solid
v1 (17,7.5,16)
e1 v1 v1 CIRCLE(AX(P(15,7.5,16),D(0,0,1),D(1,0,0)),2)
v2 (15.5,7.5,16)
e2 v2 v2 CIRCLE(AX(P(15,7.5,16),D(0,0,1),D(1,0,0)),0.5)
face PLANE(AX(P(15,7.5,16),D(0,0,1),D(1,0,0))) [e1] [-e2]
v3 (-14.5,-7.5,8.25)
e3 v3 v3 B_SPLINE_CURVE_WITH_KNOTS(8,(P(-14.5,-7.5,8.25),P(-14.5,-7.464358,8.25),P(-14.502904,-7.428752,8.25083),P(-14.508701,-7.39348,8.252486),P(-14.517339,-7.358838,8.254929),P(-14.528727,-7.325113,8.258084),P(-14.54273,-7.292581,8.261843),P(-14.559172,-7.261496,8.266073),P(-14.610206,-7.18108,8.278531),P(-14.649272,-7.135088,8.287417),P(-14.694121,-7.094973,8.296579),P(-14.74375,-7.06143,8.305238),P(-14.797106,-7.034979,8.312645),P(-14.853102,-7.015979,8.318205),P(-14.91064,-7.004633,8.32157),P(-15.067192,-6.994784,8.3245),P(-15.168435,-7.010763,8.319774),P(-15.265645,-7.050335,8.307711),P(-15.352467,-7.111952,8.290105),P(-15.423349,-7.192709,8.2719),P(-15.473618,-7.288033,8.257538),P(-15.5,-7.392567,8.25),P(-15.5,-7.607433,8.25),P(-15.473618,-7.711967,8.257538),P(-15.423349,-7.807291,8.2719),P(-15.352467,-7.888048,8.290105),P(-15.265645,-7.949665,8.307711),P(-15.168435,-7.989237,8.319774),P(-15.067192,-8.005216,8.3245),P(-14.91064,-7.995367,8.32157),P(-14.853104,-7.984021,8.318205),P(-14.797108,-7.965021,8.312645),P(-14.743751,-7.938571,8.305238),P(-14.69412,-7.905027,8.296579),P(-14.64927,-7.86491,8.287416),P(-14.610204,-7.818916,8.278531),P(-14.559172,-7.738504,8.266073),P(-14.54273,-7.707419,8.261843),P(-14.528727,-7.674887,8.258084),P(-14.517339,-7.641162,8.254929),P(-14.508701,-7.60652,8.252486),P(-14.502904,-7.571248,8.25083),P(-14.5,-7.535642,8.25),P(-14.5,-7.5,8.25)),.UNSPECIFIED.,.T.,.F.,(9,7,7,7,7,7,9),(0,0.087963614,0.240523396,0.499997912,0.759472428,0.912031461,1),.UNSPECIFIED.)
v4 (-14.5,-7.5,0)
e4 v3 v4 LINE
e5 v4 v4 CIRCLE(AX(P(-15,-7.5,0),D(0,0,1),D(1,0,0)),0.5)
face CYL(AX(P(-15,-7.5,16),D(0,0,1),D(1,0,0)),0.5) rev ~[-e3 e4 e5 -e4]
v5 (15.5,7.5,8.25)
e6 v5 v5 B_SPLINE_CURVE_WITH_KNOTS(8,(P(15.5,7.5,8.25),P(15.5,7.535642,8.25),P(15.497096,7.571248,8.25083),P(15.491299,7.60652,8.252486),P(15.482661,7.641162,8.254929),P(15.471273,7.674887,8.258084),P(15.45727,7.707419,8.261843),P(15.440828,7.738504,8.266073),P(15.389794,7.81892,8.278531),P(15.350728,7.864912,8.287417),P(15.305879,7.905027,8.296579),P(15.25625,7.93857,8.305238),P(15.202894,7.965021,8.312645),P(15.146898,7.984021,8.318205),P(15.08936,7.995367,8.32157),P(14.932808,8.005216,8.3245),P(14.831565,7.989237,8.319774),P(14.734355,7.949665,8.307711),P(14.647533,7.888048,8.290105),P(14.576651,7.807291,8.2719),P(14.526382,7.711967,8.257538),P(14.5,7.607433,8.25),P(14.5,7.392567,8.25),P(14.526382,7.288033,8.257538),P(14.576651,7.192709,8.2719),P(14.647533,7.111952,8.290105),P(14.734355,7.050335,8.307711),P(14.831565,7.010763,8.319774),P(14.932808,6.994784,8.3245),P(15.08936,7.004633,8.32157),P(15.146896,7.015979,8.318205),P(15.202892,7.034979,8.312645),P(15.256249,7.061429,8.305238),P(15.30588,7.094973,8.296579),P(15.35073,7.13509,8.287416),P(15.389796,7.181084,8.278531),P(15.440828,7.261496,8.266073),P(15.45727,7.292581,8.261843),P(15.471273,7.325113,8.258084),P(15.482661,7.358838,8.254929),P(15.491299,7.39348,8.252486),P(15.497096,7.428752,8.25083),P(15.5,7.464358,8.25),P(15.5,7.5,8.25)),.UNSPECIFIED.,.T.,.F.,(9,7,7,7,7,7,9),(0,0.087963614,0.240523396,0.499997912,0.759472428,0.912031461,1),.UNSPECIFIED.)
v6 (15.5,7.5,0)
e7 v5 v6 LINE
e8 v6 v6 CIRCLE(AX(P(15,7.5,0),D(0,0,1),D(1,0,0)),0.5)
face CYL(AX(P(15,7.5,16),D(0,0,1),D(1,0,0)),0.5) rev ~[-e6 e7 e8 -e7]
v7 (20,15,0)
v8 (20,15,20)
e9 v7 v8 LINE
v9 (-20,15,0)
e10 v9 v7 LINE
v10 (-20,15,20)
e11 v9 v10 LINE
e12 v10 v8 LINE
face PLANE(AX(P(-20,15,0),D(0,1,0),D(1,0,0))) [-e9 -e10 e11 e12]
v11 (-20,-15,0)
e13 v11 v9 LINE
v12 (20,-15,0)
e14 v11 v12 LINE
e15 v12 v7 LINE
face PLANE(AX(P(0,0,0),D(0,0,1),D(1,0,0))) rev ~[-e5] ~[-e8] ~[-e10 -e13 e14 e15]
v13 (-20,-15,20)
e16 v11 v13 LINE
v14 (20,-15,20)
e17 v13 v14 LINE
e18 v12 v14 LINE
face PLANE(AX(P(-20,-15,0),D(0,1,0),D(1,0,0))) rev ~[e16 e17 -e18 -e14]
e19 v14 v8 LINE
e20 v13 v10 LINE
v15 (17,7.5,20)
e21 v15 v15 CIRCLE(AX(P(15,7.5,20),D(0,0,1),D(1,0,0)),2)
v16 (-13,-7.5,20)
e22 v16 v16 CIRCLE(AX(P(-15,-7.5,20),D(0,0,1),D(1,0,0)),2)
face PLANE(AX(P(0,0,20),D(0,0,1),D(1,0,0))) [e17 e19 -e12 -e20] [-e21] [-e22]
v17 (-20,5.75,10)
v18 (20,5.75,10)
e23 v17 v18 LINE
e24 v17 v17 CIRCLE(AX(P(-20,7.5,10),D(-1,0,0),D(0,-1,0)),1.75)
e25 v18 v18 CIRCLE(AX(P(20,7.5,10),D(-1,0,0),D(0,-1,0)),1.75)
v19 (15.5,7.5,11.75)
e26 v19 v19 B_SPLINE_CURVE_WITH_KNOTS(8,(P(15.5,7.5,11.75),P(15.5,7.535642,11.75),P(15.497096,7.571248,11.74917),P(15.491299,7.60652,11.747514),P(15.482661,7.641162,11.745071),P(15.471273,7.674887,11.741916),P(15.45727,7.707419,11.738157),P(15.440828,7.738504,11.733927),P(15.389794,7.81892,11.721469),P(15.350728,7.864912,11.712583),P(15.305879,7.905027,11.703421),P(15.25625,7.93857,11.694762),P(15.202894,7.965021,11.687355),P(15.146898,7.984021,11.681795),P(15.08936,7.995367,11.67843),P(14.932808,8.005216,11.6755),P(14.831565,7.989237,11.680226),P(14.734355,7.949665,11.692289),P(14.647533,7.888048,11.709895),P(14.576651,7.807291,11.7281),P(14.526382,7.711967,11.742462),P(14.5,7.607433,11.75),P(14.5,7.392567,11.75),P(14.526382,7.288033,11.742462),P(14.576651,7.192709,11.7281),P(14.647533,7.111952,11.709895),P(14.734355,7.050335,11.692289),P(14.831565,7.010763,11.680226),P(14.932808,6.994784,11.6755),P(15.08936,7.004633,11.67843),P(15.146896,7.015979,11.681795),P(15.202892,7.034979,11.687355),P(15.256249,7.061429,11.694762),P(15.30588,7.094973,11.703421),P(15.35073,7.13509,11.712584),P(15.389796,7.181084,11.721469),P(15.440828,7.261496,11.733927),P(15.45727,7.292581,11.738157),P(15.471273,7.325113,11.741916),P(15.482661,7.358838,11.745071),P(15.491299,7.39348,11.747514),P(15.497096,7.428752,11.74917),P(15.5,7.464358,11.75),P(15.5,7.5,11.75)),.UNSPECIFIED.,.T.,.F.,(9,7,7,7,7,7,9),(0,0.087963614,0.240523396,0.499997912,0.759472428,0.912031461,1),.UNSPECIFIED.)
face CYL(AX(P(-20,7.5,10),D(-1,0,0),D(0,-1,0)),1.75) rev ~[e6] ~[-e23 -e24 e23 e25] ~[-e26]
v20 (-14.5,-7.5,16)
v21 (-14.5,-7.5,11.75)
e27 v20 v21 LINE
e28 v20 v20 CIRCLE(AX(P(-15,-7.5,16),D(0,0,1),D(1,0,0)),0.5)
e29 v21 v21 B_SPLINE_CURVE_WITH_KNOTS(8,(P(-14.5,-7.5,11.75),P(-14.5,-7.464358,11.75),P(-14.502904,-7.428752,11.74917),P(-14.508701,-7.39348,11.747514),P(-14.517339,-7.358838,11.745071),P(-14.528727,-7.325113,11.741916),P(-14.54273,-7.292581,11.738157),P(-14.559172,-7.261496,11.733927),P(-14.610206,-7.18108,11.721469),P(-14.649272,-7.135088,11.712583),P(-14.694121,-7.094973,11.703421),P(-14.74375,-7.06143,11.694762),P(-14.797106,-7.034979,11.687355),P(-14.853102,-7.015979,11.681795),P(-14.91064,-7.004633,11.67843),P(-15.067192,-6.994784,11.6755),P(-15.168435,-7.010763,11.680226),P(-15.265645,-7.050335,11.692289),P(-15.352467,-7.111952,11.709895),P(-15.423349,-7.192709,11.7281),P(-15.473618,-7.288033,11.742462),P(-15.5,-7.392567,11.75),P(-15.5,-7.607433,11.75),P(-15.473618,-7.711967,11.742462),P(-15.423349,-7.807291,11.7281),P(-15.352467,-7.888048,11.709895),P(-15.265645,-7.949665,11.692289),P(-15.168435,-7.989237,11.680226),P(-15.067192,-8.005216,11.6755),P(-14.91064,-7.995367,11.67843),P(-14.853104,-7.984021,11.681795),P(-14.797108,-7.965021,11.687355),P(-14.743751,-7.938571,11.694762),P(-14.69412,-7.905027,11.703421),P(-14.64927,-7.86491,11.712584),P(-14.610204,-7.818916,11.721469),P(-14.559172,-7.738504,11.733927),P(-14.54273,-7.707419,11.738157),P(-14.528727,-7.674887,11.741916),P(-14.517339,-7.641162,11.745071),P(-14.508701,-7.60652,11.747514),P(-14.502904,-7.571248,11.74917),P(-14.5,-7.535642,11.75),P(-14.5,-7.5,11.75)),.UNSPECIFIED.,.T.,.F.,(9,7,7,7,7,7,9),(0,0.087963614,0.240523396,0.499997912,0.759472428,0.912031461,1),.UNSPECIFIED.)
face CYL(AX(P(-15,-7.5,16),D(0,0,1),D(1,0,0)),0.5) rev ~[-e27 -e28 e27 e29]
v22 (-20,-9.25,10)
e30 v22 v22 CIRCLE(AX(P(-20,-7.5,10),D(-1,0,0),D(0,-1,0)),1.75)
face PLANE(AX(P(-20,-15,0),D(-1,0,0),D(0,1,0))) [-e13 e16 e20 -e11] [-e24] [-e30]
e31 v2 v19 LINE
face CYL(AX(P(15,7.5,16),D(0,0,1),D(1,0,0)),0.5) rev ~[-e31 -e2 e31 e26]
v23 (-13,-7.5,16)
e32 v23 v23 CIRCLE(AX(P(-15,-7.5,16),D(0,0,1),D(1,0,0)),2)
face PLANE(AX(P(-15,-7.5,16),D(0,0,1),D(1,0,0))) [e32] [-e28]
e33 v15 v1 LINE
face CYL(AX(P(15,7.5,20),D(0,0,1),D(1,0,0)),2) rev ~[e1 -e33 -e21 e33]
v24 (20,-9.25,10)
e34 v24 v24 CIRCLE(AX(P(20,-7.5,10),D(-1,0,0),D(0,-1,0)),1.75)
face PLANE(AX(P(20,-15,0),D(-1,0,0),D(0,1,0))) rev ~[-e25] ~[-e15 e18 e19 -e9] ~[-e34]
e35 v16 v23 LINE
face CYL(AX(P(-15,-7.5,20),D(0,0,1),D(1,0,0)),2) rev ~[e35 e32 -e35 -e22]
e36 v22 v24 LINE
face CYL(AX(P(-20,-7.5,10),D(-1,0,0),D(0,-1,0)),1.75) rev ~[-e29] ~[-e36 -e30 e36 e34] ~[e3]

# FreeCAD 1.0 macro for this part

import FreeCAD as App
import Part
import Sketcher

doc = App.newDocument("Part")
body = doc.addObject("PartDesign::Body", "Body")

sketch1 = body.newObject("Sketcher::SketchObject", "Sketch")
sketch1.AttachmentSupport = (doc.getObject("XY_Plane"), [""])
sketch1.MapMode = "FlatFace"
sketch1.addGeometry([
    Part.LineSegment(App.Vector(-20, 15, 0), App.Vector(-20, -15, 0)),
    Part.LineSegment(App.Vector(-20, -15, 0), App.Vector(20, -15, 0)),
    Part.LineSegment(App.Vector(20, -15, 0), App.Vector(20, 15, 0)),
    Part.LineSegment(App.Vector(20, 15, 0), App.Vector(-20, 15, 0)),
], False)
sketch1.addConstraint([
    Sketcher.Constraint("Coincident", 0, 2, 1, 1),
    Sketcher.Constraint("Coincident", 1, 2, 2, 1),
    Sketcher.Constraint("Coincident", 2, 2, 3, 1),
    Sketcher.Constraint("Coincident", 3, 2, 0, 1),
    Sketcher.Constraint("Vertical", 0),
    Sketcher.Constraint("Horizontal", 1),
    Sketcher.Constraint("Vertical", 2),
    Sketcher.Constraint("Horizontal", 3),
    Sketcher.Constraint("Symmetric", 0, 2, 2, 2, -1, 1),
    Sketcher.Constraint("DistanceX", 1, 1, 1, 2, 40.0),
    Sketcher.Constraint("DistanceY", 0, 2, 0, 1, 30.0),
])
pad1 = body.newObject("PartDesign::Pad", "Pad")
pad1.Profile = sketch1
pad1.Length = 20

sketch2 = body.newObject("Sketcher::SketchObject", "Sketch001")
sketch2.AttachmentSupport = (doc.getObject("YZ_Plane"), [""])
sketch2.MapMode = "FlatFace"
sketch2.AttachmentOffset = App.Placement(App.Vector(0, 0, -20), App.Rotation())
sketch2.addGeometry([
    Part.Circle(App.Vector(7.5, 10, 0), App.Vector(0, 0, 1), 1.8),
    Part.Circle(App.Vector(-7.5, 10, 0), App.Vector(0, 0, 1), 1.8),
], False)
sketch2.addConstraint([
    Sketcher.Constraint("Equal", 0, 1),
    Sketcher.Constraint("Symmetric", 0, 3, 1, 3, -2),
    Sketcher.Constraint("Diameter", 0, 3.5),
    Sketcher.Constraint("DistanceY", -1, 1, 0, 3, 10.0),
    Sketcher.Constraint("DistanceX", 1, 3, 0, 3, 15.0),
])
pocket1 = body.newObject("PartDesign::Pocket", "Pocket")
pocket1.Profile = sketch2
pocket1.Type = "ThroughAll"
pocket1.Reversed = True

sketch3 = body.newObject("Sketcher::SketchObject", "Sketch002")
sketch3.AttachmentSupport = (doc.getObject("XY_Plane"), [""])
sketch3.MapMode = "FlatFace"
sketch3.AttachmentOffset = App.Placement(App.Vector(0, 0, 20), App.Rotation())
sketch3.addGeometry([
    Part.Circle(App.Vector(15, 7.5, 0), App.Vector(0, 0, 1), 2),
    Part.Circle(App.Vector(-15, -7.5, 0), App.Vector(0, 0, 1), 2),
], False)
sketch3.addConstraint([
    Sketcher.Constraint("Equal", 0, 1),
    Sketcher.Constraint("Symmetric", 0, 3, 1, 3, -1, 1),
    Sketcher.Constraint("Diameter", 0, 4.0),
    Sketcher.Constraint("DistanceX", -1, 1, 0, 3, 15.0),
    Sketcher.Constraint("DistanceY", 1, 3, 0, 3, 15.0),
])
pocket2 = body.newObject("PartDesign::Pocket", "Pocket001")
pocket2.Profile = sketch3
pocket2.Length = 4

sketch4 = body.newObject("Sketcher::SketchObject", "Sketch003")
sketch4.AttachmentSupport = (doc.getObject("XY_Plane"), [""])
sketch4.MapMode = "FlatFace"
sketch4.AttachmentOffset = App.Placement(App.Vector(0, 0, 16), App.Rotation())
sketch4.addGeometry([
    Part.Circle(App.Vector(15, 7.5, 0), App.Vector(0, 0, 1), 0.5),
    Part.Circle(App.Vector(-15, -7.5, 0), App.Vector(0, 0, 1), 0.5),
], False)
sketch4.addConstraint([
    Sketcher.Constraint("Equal", 0, 1),
    Sketcher.Constraint("Symmetric", 0, 3, 1, 3, -1, 1),
    Sketcher.Constraint("Diameter", 0, 1.0),
    Sketcher.Constraint("DistanceX", -1, 1, 0, 3, 15.0),
    Sketcher.Constraint("DistanceY", 1, 3, 0, 3, 15.0),
])
pocket3 = body.newObject("PartDesign::Pocket", "Pocket002")
pocket3.Profile = sketch4
pocket3.Type = "ThroughAll"

doc.recompute()
